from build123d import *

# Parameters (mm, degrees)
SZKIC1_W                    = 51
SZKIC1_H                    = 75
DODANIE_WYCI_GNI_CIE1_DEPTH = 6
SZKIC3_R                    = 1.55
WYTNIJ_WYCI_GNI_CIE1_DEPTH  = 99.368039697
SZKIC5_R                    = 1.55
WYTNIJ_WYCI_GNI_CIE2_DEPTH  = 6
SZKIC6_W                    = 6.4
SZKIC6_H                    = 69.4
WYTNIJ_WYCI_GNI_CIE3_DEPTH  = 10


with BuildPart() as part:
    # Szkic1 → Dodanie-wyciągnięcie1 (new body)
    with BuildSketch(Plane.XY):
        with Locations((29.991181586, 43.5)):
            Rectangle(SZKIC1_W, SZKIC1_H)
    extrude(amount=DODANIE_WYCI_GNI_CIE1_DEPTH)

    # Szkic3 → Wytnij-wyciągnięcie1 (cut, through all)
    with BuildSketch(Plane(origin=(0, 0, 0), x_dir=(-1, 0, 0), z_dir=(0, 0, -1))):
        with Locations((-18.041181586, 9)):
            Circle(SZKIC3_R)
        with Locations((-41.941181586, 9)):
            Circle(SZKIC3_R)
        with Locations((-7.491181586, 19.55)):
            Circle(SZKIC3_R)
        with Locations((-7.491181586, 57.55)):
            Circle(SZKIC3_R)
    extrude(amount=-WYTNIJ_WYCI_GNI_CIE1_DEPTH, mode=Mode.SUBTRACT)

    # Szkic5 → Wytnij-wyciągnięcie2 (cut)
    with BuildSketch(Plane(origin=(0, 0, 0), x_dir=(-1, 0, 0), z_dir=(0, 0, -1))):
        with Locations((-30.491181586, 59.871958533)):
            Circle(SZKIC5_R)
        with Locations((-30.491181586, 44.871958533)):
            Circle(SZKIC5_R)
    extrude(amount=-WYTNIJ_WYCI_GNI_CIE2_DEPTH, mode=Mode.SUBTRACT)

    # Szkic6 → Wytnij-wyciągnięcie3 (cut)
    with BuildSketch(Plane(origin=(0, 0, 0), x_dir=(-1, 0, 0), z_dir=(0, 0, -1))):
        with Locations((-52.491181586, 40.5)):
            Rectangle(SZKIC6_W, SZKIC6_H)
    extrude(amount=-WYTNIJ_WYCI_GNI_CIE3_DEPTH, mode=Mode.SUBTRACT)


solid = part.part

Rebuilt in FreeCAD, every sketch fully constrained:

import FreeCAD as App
import Part
import Sketcher
Q = App.Units.Quantity


def add_polygon(sketch, points):
    """Adds a closed chain of lines whose ends are joined by coincident constraints."""
    first, n = sketch.GeometryCount, len(points)
    for a, b in zip(points, points[1:] + points[:1]):
        sketch.addGeometry(Part.LineSegment(App.Vector(*a, 0), App.Vector(*b, 0)), False)
    for i in range(n):
        sketch.addConstraint(Sketcher.Constraint("Coincident", first + i, 2, first + (i + 1) % n, 1))

doc = App.newDocument("Part")
body = doc.addObject("PartDesign::Body", "Body")

sketch1 = body.newObject("Sketcher::SketchObject", "Sketch")
sketch1.AttachmentSupport = (doc.getObject("XY_Plane"), [""])
sketch1.MapMode = "FlatFace"
add_polygon(sketch1, [(4, 81), (4, 6), (55, 6), (55, 81)])
sketch1.addConstraint(Sketcher.Constraint("Vertical", 0))
sketch1.addConstraint(Sketcher.Constraint("Horizontal", 1))
sketch1.addConstraint(Sketcher.Constraint("Vertical", 2))
sketch1.addConstraint(Sketcher.Constraint("Horizontal", 3))
sketch1.addConstraint(Sketcher.Constraint("DistanceX", 1, 1, 1, 2, Q("51 mm")))
sketch1.addConstraint(Sketcher.Constraint("DistanceY", 0, 2, 0, 1, Q("75 mm")))
sketch1.addConstraint(Sketcher.Constraint("DistanceY", -1, 1, 0, 2, Q("6 mm")))
sketch1.addConstraint(Sketcher.Constraint("DistanceX", -1, 1, 0, 2, Q("4.491182 mm")))
pad1 = body.newObject("PartDesign::Pad", "Pad")
pad1.Profile = sketch1
pad1.Length = 6

sketch2 = body.newObject("Sketcher::SketchObject", "Sketch001")
sketch2.AttachmentSupport = (doc.getObject("XY_Plane"), [""])
sketch2.MapMode = "FlatFace"
sketch2.addGeometry(Part.Circle(App.Vector(18, 9, 0), App.Vector(0, 0, 1), 1.6), False)
sketch2.addGeometry(Part.Circle(App.Vector(41.9, 9, 0), App.Vector(0, 0, 1), 1.6), False)
sketch2.addGeometry(Part.Circle(App.Vector(7.5, 19.6, 0), App.Vector(0, 0, 1), 1.6), False)
sketch2.addGeometry(Part.Circle(App.Vector(7.5, 57.5, 0), App.Vector(0, 0, 1), 1.6), False)
sketch2.addConstraint(Sketcher.Constraint("Equal", 0, 1))
sketch2.addConstraint(Sketcher.Constraint("Equal", 1, 2))
sketch2.addConstraint(Sketcher.Constraint("Equal", 2, 3))
sketch2.addConstraint(Sketcher.Constraint("Horizontal", 0, 3, 1, 3))
sketch2.addConstraint(Sketcher.Constraint("Vertical", 2, 3, 3, 3))
sketch2.addConstraint(Sketcher.Constraint("Diameter", 0, Q("3.1 mm")))
sketch2.addConstraint(Sketcher.Constraint("DistanceY", -1, 1, 0, 3, Q("9 mm")))
sketch2.addConstraint(Sketcher.Constraint("DistanceY", 2, 3, 3, 3, Q("38 mm")))
sketch2.addConstraint(Sketcher.Constraint("DistanceX", 0, 3, 1, 3, Q("23.9 mm")))
sketch2.addConstraint(Sketcher.Constraint("DistanceY", -1, 1, 2, 3, Q("19.55 mm")))
sketch2.addConstraint(Sketcher.Constraint("DistanceX", 2, 3, 0, 3, Q("10.55 mm")))
sketch2.addConstraint(Sketcher.Constraint("DistanceX", -1, 1, 0, 3, Q("18.041182 mm")))
pocket1 = body.newObject("PartDesign::Pocket", "Pocket")
pocket1.Profile = sketch2
pocket1.Type = "ThroughAll"
pocket1.Reversed = True

sketch3 = body.newObject("Sketcher::SketchObject", "Sketch002")
sketch3.AttachmentSupport = (doc.getObject("XY_Plane"), [""])
sketch3.MapMode = "FlatFace"
sketch3.addGeometry(Part.Circle(App.Vector(30.5, 59.9, 0), App.Vector(0, 0, 1), 1.6), False)
sketch3.addGeometry(Part.Circle(App.Vector(30.5, 44.9, 0), App.Vector(0, 0, 1), 1.6), False)
sketch3.addConstraint(Sketcher.Constraint("Equal", 0, 1))
sketch3.addConstraint(Sketcher.Constraint("Vertical", 0, 3, 1, 3))
sketch3.addConstraint(Sketcher.Constraint("Diameter", 0, Q("3.1 mm")))
sketch3.addConstraint(Sketcher.Constraint("DistanceY", 1, 3, 0, 3, Q("15 mm")))
sketch3.addConstraint(Sketcher.Constraint("DistanceX", -1, 1, 0, 3, Q("30.491182 mm")))
sketch3.addConstraint(Sketcher.Constraint("DistanceY", -1, 1, 0, 3, Q("59.871959 mm")))
pocket2 = body.newObject("PartDesign::Pocket", "Pocket001")
pocket2.Profile = sketch3
pocket2.Length = 6
pocket2.Reversed = True

sketch4 = body.newObject("Sketcher::SketchObject", "Sketch003")
sketch4.AttachmentSupport = (doc.getObject("XY_Plane"), [""])
sketch4.MapMode = "FlatFace"
add_polygon(sketch4, [(56, 75), (56, 6), (49, 6), (49, 75)])
sketch4.addConstraint(Sketcher.Constraint("Vertical", 0))
sketch4.addConstraint(Sketcher.Constraint("Horizontal", 1))
sketch4.addConstraint(Sketcher.Constraint("Vertical", 2))
sketch4.addConstraint(Sketcher.Constraint("Horizontal", 3))
sketch4.addConstraint(Sketcher.Constraint("DistanceX", 1, 2, 1, 1, Q("6.4 mm")))
sketch4.addConstraint(Sketcher.Constraint("DistanceY", 0, 2, 0, 1, Q("69.4 mm")))
sketch4.addConstraint(Sketcher.Constraint("DistanceY", -1, 1, 0, 2, Q("5.8 mm")))
sketch4.addConstraint(Sketcher.Constraint("DistanceX", -1, 1, 0, 2, Q("55.691182 mm")))
pocket3 = body.newObject("PartDesign::Pocket", "Pocket002")
pocket3.Profile = sketch4
pocket3.Length = 10
pocket3.Reversed = True

doc.recompute()
